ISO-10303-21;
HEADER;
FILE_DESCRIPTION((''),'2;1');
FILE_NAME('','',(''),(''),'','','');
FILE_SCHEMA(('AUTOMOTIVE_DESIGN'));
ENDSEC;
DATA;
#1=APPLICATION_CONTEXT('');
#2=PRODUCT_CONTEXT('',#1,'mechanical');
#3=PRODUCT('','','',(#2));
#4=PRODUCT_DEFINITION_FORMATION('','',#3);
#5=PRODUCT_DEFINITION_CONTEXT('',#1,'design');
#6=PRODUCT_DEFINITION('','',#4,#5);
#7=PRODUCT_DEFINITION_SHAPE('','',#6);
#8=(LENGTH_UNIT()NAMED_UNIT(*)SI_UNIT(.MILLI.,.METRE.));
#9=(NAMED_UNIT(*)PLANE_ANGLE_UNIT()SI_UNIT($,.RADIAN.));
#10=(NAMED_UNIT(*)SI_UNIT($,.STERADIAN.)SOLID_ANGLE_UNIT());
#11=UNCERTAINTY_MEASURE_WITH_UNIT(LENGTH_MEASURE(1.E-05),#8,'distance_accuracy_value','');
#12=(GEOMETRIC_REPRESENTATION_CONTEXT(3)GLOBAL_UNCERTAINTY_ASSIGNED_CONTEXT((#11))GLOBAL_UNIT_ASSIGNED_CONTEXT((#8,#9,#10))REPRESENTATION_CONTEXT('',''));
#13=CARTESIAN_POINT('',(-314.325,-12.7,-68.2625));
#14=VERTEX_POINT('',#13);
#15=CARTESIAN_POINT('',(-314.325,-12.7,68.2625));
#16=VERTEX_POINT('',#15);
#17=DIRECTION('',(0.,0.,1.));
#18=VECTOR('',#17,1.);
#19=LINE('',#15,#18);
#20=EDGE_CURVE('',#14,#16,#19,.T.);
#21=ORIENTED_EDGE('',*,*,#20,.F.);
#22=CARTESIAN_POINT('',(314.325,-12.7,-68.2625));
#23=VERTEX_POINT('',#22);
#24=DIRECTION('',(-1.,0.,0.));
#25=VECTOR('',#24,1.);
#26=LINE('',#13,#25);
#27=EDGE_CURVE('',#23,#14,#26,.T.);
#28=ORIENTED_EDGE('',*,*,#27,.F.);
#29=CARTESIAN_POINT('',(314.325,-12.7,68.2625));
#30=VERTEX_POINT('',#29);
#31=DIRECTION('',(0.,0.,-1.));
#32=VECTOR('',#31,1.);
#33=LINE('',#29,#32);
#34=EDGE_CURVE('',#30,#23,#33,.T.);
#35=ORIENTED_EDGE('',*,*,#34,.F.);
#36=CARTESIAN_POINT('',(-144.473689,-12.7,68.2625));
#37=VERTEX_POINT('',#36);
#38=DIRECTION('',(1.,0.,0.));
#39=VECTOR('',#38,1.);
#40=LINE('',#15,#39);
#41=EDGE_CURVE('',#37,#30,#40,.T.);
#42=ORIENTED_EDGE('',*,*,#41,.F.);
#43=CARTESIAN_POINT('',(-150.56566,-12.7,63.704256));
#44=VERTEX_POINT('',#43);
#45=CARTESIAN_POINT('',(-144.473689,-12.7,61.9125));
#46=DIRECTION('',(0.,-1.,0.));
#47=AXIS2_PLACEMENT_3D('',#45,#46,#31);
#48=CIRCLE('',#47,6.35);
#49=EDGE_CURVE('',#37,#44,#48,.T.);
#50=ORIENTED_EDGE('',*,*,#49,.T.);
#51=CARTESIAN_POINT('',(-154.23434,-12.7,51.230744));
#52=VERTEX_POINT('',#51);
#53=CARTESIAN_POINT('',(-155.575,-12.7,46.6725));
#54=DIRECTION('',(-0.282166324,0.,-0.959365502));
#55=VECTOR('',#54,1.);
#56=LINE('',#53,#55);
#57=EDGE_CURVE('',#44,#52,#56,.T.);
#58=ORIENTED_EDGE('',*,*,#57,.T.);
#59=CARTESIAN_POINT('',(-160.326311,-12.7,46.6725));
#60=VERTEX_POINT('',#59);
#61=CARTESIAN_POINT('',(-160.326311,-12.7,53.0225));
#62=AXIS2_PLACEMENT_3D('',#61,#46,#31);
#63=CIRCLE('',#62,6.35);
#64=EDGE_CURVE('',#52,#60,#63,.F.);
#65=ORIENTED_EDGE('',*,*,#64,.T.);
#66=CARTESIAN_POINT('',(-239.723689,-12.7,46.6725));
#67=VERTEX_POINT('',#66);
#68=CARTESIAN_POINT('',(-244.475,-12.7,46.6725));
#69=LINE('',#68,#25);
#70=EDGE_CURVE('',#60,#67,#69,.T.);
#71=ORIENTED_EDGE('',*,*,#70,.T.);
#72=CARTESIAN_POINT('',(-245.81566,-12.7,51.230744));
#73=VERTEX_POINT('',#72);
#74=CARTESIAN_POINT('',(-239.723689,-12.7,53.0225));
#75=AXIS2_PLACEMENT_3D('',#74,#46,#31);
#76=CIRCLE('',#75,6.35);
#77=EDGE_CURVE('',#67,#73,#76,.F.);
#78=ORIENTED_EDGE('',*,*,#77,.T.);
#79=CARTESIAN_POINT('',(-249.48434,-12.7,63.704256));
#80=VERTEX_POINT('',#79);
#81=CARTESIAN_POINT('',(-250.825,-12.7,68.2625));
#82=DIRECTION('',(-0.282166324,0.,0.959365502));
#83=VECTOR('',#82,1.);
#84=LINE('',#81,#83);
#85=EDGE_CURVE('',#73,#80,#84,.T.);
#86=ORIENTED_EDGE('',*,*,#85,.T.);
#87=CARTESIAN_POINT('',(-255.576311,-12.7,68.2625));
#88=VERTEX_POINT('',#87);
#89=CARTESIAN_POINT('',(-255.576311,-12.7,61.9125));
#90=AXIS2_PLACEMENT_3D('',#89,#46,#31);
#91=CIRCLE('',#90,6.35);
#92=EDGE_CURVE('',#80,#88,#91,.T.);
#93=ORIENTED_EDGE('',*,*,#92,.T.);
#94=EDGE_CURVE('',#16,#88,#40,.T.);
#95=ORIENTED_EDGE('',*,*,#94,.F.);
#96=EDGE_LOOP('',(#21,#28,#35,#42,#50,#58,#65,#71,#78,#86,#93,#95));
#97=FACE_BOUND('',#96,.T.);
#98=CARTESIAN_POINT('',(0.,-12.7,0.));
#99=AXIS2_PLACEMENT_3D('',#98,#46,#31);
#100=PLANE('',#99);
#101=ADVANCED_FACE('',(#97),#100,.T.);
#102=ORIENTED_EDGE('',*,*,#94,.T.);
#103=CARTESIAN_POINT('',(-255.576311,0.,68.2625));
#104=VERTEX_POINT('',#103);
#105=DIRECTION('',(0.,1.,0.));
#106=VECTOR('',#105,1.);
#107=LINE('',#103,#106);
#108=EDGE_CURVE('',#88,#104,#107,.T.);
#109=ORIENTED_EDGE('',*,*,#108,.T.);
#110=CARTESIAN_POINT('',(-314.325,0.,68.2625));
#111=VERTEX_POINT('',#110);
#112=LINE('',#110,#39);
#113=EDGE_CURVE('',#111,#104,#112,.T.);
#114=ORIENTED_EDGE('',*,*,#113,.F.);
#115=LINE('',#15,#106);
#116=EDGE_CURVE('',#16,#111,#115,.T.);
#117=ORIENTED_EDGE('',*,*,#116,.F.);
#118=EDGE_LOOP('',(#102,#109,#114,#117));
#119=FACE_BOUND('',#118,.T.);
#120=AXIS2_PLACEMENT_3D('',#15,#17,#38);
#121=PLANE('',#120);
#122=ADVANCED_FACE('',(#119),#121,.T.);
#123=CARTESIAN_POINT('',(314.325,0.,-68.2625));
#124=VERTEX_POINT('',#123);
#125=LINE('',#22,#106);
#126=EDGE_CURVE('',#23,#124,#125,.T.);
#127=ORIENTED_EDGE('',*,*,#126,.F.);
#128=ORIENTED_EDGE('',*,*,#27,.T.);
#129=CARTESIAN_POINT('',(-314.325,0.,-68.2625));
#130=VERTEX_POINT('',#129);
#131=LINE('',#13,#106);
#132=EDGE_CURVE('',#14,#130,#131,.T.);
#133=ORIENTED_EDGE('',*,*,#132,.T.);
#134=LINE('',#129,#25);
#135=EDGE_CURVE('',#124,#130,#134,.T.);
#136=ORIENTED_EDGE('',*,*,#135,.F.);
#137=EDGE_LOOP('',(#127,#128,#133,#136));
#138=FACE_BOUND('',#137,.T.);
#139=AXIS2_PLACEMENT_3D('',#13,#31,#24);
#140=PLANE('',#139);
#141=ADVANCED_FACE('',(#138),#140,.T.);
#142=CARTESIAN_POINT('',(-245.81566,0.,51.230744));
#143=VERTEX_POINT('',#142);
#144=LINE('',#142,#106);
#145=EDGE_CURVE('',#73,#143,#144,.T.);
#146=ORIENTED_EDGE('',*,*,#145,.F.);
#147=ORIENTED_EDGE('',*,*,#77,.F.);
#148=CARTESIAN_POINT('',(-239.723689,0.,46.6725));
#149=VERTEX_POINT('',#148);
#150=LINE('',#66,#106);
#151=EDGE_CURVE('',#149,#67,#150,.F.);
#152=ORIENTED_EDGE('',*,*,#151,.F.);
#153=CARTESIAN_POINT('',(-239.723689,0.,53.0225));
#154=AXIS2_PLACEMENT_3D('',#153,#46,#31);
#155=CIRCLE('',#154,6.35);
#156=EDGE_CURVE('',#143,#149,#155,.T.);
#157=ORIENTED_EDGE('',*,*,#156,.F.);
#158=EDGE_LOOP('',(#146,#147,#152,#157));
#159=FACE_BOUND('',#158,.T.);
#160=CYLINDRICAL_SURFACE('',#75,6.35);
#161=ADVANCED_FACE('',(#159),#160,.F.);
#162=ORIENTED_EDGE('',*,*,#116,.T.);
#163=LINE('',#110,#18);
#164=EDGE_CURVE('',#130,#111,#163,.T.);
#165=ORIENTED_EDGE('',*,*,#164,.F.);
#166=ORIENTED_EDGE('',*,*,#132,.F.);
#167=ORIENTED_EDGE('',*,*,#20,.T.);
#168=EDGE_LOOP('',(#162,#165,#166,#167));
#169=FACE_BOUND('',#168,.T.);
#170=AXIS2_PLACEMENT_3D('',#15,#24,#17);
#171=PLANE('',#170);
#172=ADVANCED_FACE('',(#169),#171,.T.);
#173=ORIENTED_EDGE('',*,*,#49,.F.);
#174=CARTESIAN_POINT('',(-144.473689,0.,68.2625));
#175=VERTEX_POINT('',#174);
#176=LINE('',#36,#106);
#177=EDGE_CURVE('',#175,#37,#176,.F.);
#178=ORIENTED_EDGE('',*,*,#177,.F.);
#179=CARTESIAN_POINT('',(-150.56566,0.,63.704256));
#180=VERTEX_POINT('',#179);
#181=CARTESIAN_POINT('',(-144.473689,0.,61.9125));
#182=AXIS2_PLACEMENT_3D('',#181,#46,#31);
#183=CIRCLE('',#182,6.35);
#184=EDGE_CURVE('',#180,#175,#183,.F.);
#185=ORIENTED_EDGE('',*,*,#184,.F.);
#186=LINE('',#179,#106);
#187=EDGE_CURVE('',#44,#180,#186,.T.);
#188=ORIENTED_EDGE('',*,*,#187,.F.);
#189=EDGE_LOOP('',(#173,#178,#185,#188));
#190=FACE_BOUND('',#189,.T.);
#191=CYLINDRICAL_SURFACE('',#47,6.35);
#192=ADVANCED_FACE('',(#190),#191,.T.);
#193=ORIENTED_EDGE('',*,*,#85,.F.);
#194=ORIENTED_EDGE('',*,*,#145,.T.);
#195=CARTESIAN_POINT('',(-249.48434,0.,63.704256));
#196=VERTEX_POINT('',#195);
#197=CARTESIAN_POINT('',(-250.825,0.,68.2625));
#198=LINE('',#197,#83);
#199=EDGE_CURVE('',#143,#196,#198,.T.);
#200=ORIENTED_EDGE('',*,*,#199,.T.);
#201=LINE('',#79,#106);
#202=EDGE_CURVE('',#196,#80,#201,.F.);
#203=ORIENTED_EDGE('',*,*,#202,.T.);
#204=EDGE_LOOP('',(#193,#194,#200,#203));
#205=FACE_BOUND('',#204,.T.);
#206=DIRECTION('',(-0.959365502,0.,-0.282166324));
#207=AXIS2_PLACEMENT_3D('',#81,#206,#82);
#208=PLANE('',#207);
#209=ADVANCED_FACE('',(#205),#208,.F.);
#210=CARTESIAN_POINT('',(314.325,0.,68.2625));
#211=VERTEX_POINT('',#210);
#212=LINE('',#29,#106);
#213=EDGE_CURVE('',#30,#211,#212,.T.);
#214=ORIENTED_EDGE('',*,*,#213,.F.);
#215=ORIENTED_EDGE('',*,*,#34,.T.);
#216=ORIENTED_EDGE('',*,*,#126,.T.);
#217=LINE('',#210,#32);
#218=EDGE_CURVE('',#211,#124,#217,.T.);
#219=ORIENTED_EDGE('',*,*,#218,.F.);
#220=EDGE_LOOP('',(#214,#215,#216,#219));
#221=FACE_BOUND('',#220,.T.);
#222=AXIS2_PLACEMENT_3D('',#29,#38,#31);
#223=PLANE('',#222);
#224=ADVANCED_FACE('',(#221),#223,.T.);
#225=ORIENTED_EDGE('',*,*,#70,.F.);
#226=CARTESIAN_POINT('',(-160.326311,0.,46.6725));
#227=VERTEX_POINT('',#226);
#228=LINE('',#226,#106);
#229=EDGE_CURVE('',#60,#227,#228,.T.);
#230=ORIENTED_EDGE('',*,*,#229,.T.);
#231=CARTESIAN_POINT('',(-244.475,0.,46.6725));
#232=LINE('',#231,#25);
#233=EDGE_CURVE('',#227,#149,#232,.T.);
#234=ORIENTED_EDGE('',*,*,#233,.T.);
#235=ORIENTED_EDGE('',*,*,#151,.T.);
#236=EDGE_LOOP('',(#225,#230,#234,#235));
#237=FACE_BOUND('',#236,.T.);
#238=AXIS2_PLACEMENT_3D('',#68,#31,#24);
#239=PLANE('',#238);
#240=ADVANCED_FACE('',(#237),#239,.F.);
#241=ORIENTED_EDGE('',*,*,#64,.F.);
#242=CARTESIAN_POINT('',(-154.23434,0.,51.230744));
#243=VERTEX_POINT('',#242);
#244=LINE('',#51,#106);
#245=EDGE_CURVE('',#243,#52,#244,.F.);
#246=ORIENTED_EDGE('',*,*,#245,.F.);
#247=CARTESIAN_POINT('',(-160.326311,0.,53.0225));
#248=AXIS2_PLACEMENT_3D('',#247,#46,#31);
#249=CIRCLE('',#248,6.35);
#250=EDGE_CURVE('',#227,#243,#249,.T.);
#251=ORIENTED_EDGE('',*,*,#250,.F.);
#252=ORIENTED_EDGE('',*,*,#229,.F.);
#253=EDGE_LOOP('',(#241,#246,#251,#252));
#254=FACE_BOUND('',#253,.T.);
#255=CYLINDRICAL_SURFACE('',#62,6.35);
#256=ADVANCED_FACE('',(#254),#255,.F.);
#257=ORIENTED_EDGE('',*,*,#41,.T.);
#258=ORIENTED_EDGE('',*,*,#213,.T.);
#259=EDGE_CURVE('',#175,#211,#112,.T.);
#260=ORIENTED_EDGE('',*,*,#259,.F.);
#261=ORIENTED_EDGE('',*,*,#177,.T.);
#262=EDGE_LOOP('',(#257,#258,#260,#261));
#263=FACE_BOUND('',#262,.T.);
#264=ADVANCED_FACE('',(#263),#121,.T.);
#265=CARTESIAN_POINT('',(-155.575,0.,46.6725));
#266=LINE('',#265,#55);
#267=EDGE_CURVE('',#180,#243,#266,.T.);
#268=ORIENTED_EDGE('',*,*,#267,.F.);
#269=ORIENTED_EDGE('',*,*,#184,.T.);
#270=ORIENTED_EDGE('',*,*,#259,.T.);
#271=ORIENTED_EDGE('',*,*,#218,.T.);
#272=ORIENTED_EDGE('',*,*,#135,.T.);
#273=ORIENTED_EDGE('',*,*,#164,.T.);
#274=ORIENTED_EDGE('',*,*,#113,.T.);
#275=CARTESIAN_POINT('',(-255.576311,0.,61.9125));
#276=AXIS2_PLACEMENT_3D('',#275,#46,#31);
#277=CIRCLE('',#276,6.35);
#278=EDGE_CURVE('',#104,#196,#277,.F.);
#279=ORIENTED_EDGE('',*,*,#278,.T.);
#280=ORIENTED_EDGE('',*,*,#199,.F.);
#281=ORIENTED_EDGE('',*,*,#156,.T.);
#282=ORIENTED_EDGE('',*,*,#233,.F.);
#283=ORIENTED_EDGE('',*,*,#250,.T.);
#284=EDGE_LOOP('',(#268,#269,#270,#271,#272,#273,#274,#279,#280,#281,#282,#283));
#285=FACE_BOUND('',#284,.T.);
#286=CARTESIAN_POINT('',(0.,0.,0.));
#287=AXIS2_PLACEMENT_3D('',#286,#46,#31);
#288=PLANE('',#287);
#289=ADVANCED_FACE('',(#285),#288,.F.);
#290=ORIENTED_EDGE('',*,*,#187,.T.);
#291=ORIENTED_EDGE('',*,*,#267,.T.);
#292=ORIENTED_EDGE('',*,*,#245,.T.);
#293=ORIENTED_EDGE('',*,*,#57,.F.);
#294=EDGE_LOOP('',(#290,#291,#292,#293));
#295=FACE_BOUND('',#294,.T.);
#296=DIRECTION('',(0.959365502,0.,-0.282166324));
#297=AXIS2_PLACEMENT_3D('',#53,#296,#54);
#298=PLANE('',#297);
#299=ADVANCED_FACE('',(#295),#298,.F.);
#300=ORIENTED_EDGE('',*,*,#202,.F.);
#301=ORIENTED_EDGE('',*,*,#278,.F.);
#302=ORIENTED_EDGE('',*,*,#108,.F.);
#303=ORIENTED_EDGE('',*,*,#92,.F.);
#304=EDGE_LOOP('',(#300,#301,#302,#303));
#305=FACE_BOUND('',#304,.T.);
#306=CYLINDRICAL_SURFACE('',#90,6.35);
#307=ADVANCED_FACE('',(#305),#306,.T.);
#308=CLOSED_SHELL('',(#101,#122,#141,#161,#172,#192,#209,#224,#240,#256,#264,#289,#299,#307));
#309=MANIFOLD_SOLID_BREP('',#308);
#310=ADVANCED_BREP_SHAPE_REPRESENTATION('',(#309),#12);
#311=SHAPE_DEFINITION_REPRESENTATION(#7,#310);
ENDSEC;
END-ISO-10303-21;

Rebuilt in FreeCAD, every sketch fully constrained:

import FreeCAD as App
import Part
import Sketcher
Q = App.Units.Quantity


def edges_at(feature, points):
    """Names of the edges that pass closest to the given points."""
    edges = feature.Shape.Edges
    near = lambda p: min(range(len(edges)), key=lambda i: edges[i].distToShape(Part.Vertex(*p))[0])
    return sorted({f"Edge{near(p) + 1}" for p in points})

doc = App.newDocument("Part")
body = doc.addObject("PartDesign::Body", "Body")

sketch1 = doc.addObject("Sketcher::SketchObject", "Sketch")
body.addObject(sketch1)
sketch1.AttachmentSupport = (doc.XZ_Plane, [""])
sketch1.MapMode = "FlatFace"
sketch1.addGeometry([
    Part.LineSegment(App.Vector(-314.325, -68.2625, 0), App.Vector(-314.325, 68.2625, 0)),
    Part.LineSegment(App.Vector(-314.325, 68.2625, 0), App.Vector(314.325, 68.2625, 0)),
    Part.LineSegment(App.Vector(314.325, 68.2625, 0), App.Vector(314.325, -68.2625, 0)),
    Part.LineSegment(App.Vector(314.325, -68.2625, 0), App.Vector(-314.325, -68.2625, 0)),
], False)
sketch1.addConstraint([
    Sketcher.Constraint("Coincident", 0, 2, 1, 1),
    Sketcher.Constraint("Coincident", 1, 2, 2, 1),
    Sketcher.Constraint("Coincident", 2, 2, 3, 1),
    Sketcher.Constraint("Coincident", 3, 2, 0, 1),
    Sketcher.Constraint("Vertical", 0),
    Sketcher.Constraint("Horizontal", 1),
    Sketcher.Constraint("Vertical", 2),
    Sketcher.Constraint("Horizontal", 3),
    Sketcher.Constraint("Symmetric", 0, 2, 2, 2, -1, 1),
    Sketcher.Constraint("DistanceX", 1, 1, 1, 2, Q("24.75 in")),
    Sketcher.Constraint("DistanceY", 0, 1, 0, 2, Q("5.375 in")),
])
pad1 = doc.addObject("PartDesign::Pad", "Pad")
body.addObject(pad1)
pad1.Profile = sketch1
pad1.Length = Q("0.5 in")

sketch2 = doc.addObject("Sketcher::SketchObject", "Sketch001")
body.addObject(sketch2)
sketch2.AttachmentSupport = (doc.XZ_Plane, [""])
sketch2.MapMode = "FlatFace"
sketch2.addGeometry([
    Part.LineSegment(App.Vector(-244.475, 46.6725, 0), App.Vector(-250.825, 68.2625, 0)),
    Part.LineSegment(App.Vector(-250.825, 68.2625, 0), App.Vector(-149.225, 68.2625, 0)),
    Part.LineSegment(App.Vector(-149.225, 68.2625, 0), App.Vector(-155.575, 46.6725, 0)),
    Part.LineSegment(App.Vector(-155.575, 46.6725, 0), App.Vector(-244.475, 46.6725, 0)),
], False)
sketch2.addConstraint([
    Sketcher.Constraint("Coincident", 0, 2, 1, 1),
    Sketcher.Constraint("Coincident", 1, 2, 2, 1),
    Sketcher.Constraint("Coincident", 2, 2, 3, 1),
    Sketcher.Constraint("Coincident", 3, 2, 0, 1),
    Sketcher.Constraint("Horizontal", 1),
    Sketcher.Constraint("Horizontal", 3),
    Sketcher.Constraint("Equal", 0, 2),
    Sketcher.Constraint("DistanceX", 1, 1, 1, 2, Q("4 in")),
    Sketcher.Constraint("DistanceX", 3, 2, 3, 1, Q("3.5 in")),
    Sketcher.Constraint("DistanceY", 2, 2, 1, 2, Q("0.85 in")),
    Sketcher.Constraint("DistanceX", 0, 2, -1, 1, Q("9.875 in")),
    Sketcher.Constraint("DistanceY", -1, 1, 0, 2, Q("2.6875 in")),
])
pocket1 = doc.addObject("PartDesign::Pocket", "Pocket")
body.addObject(pocket1)
pocket1.Profile = sketch2
pocket1.Type = "ThroughAll"
pocket1.Reversed = True
doc.recompute()

fillet = doc.addObject("PartDesign::Fillet", "Fillet")
body.addObject(fillet)
fillet.Base = (pocket1, edges_at(pocket1, [
    (-149.225, -6.35, 68.263),
    (-250.825, -6.35, 68.263),
    (-244.475, -6.35, 46.672),
    (-155.575, -6.35, 46.672),
]))
fillet.Radius = Q("0.25 in")

doc.recompute()
